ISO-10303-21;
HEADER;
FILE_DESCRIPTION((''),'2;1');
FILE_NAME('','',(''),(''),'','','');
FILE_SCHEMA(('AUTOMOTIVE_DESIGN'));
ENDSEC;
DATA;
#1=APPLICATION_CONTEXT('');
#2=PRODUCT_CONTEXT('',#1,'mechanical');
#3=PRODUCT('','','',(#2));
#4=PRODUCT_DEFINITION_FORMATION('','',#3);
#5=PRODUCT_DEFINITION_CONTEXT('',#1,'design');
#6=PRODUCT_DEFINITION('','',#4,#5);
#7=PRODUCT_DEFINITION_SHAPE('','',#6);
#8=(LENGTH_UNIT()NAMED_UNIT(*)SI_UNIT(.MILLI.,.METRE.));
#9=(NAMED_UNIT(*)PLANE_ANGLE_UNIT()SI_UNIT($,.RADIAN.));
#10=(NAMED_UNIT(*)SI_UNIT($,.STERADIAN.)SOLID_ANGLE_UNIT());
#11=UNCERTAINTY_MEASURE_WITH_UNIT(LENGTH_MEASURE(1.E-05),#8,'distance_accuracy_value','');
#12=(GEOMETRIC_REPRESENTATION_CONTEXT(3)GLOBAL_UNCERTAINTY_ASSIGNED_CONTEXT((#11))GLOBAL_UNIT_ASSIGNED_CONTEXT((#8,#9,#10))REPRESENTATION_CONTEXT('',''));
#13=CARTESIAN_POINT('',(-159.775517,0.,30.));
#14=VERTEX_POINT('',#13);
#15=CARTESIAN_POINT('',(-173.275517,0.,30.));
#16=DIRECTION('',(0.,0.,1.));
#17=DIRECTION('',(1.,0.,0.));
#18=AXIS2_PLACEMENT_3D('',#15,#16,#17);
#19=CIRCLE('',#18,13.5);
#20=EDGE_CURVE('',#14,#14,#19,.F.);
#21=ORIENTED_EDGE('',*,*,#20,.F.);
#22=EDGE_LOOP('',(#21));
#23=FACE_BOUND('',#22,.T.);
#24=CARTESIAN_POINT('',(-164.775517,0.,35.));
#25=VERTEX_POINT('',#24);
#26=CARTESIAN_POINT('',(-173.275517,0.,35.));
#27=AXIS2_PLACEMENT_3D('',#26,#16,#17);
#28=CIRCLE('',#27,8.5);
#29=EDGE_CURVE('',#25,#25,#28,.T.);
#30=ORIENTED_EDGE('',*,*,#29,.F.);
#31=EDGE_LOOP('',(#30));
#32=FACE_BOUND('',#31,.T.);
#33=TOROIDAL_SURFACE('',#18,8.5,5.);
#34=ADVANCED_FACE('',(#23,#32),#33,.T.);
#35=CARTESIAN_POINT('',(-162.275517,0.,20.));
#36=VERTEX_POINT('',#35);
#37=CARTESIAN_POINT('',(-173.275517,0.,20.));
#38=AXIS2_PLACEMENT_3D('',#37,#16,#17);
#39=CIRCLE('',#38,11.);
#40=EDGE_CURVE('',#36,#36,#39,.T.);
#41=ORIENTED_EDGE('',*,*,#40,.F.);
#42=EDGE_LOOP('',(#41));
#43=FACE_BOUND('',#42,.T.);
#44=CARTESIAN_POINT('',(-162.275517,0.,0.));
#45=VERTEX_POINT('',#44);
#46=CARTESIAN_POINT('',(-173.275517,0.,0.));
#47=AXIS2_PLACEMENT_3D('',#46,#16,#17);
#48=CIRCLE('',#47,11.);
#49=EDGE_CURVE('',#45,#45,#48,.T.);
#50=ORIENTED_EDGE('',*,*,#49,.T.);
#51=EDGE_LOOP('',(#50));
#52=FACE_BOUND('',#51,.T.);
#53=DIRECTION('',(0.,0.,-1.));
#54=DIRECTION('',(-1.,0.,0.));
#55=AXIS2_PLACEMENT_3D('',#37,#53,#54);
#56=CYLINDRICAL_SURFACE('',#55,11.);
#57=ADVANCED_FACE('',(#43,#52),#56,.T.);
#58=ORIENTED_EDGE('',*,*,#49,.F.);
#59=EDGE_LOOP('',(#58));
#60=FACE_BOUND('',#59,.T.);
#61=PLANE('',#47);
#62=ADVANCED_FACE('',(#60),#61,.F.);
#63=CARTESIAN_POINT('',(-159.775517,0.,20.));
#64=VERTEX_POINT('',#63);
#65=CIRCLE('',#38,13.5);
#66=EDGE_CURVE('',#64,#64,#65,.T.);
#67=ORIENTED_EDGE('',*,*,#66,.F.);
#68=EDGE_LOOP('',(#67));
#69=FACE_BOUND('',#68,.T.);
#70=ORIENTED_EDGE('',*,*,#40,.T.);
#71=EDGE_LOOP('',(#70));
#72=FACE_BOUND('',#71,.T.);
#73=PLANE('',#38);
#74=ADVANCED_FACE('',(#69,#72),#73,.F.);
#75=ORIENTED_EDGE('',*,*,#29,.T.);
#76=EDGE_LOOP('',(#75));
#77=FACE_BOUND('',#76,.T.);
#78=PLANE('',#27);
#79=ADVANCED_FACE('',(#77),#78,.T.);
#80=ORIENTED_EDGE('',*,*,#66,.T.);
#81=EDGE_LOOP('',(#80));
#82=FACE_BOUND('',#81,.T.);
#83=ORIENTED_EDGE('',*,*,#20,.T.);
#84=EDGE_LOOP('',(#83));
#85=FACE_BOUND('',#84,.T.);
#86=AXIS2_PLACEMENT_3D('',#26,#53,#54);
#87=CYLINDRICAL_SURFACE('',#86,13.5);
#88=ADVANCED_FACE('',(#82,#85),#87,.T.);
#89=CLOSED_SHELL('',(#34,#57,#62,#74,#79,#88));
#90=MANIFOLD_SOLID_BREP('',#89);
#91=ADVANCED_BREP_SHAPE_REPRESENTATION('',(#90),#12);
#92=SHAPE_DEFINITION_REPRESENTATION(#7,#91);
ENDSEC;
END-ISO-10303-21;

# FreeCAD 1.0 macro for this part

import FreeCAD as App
import Part
import Sketcher
Q = App.Units.Quantity


def edges_at(feature, points):
    """Names of the edges that pass closest to the given points."""
    edges = feature.Shape.Edges
    near = lambda p: min(range(len(edges)), key=lambda i: edges[i].distToShape(Part.Vertex(*p))[0])
    return sorted({f"Edge{near(p) + 1}" for p in points})

doc = App.newDocument("Part")
body = doc.addObject("PartDesign::Body", "Body")

sketch1 = doc.addObject("Sketcher::SketchObject", "Sketch")
body.addObject(sketch1)
sketch1.AttachmentSupport = (doc.XY_Plane, [""])
sketch1.MapMode = "FlatFace"
sketch1.addGeometry(Part.Circle(App.Vector(-173, 0, 0), App.Vector(0, 0, 1), 11), False)
sketch1.addConstraint([
    Sketcher.Constraint("PointOnObject", 0, 3, -1),
    Sketcher.Constraint("Diameter", 0, Q("22 mm")),
    Sketcher.Constraint("DistanceX", 0, 3, -1, 1, Q("173.275517 mm")),
])
pad1 = doc.addObject("PartDesign::Pad", "Pad")
body.addObject(pad1)
pad1.Profile = sketch1
pad1.Length = 20

sketch2 = doc.addObject("Sketcher::SketchObject", "Sketch001")
body.addObject(sketch2)
sketch2.AttachmentSupport = (doc.XY_Plane, [""])
sketch2.MapMode = "FlatFace"
sketch2.AttachmentOffset = App.Placement(App.Vector(0, 0, 20), App.Rotation())
sketch2.addGeometry(Part.Circle(App.Vector(-173, 0, 0), App.Vector(0, 0, 1), 14), False)
sketch2.addConstraint([
    Sketcher.Constraint("PointOnObject", 0, 3, -1),
    Sketcher.Constraint("Diameter", 0, Q("27 mm")),
    Sketcher.Constraint("DistanceX", 0, 3, -1, 1, Q("173.275517 mm")),
])
pad2 = doc.addObject("PartDesign::Pad", "Pad001")
body.addObject(pad2)
pad2.Profile = sketch2
pad2.Length = 15
doc.recompute()

fillet = doc.addObject("PartDesign::Fillet", "Fillet")
body.addObject(fillet)
fillet.Base = (pad2, edges_at(pad2, [(-186.776, 0, 35)]))
fillet.Radius = 5

doc.recompute()
